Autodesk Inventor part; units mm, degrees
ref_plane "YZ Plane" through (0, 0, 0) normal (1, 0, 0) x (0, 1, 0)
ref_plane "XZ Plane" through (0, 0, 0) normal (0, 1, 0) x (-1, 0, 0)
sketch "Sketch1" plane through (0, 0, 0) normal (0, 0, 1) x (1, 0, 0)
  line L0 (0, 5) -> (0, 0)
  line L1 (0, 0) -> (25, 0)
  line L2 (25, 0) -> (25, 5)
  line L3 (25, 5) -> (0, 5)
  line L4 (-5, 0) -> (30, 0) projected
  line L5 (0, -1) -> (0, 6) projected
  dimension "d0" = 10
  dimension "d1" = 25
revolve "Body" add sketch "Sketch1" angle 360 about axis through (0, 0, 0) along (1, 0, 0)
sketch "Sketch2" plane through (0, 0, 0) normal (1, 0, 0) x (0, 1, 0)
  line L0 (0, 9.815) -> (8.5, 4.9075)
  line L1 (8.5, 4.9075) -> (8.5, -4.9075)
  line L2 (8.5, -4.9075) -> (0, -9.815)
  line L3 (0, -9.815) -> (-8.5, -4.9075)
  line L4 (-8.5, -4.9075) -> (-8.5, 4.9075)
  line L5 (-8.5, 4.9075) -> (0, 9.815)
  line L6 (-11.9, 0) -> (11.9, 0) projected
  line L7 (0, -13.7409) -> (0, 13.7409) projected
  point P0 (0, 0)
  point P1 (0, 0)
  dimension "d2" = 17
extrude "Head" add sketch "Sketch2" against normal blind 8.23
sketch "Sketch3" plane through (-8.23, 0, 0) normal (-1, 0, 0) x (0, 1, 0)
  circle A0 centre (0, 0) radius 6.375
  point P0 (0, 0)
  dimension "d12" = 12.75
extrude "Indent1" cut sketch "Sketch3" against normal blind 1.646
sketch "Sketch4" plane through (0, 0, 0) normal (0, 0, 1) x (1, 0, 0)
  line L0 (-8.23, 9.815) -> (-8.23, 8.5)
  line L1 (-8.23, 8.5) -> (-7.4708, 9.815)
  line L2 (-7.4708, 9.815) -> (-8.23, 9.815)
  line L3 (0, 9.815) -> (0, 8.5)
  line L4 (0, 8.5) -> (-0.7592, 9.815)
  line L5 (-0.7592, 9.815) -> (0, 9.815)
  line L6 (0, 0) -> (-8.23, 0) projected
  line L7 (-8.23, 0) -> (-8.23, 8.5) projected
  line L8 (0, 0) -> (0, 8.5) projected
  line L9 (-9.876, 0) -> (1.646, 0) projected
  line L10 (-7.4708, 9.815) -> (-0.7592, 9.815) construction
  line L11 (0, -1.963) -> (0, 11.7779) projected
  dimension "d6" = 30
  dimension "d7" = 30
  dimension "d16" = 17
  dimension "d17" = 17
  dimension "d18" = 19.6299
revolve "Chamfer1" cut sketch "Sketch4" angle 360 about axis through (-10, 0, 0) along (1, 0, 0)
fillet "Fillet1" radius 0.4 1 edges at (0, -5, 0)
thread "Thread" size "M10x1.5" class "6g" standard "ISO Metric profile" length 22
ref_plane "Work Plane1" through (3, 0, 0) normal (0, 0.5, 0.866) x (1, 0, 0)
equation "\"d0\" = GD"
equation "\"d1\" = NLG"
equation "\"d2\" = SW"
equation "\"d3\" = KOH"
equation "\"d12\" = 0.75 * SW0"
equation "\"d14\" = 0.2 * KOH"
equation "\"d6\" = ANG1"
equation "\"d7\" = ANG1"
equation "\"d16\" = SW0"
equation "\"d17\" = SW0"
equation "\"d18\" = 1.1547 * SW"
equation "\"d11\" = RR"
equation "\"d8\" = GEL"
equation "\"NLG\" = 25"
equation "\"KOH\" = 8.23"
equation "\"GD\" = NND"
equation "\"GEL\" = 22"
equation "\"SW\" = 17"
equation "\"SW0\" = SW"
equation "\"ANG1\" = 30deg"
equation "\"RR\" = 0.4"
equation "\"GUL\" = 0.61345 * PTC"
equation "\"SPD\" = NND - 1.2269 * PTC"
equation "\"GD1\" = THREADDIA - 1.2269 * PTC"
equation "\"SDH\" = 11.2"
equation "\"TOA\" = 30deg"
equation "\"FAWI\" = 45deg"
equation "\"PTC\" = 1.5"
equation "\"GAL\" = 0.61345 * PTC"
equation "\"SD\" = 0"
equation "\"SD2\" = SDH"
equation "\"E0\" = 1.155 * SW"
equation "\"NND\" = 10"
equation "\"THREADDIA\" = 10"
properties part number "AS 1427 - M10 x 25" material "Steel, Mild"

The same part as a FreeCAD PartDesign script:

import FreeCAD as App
import Part
import Sketcher

V = App.Vector
Q = App.Units.Quantity


def edges_at(feature, points):
    """Names of the edges that pass closest to the given points."""
    edges = feature.Shape.Edges
    near = lambda p: min(range(len(edges)), key=lambda i: edges[i].distToShape(Part.Vertex(*p))[0])
    return sorted({f"Edge{near(p) + 1}" for p in points})

doc = App.newDocument("Part")
params = doc.addObject("Spreadsheet::Sheet", "Params")
for row, (alias, value) in enumerate([
    ("sketch1_width", "25 mm"),
    ("sketch1_height", "5 mm"),
    ("revolution_angle", "360 deg"),
    ("pad1_length", "8.23 mm"),
    ("sketch3_diameter", "12.75 mm"),
    ("pocket1_length", "1.646 mm"),
    ("groove_angle", "360 deg"),
    ("fillet_radius", "0.4 mm"),
], start=1):
    params.set(f"A{row}", alias)
    params.set(f"B{row}", "=" + value)
    params.setAlias(f"B{row}", alias)

body = doc.addObject("PartDesign::Body", "Body")

# Sketch on XY plane
sketch1 = body.newObject("Sketcher::SketchObject", "Sketch")
sketch1.AttachmentSupport = (doc.getObject("XY_Plane"), [""])
sketch1.MapMode = "FlatFace"
sketch1.addGeometry([
    Part.LineSegment(V(25, 5, 0), V(0, 5, 0)),
    Part.LineSegment(V(0, 5, 0), V(0, 0, 0)),
    Part.LineSegment(V(0, 0, 0), V(25, 0, 0)),
    Part.LineSegment(V(25, 0, 0), V(25, 5, 0)),
], False)
sketch1.addConstraint([
    Sketcher.Constraint("Coincident", 0, 2, 1, 1),
    Sketcher.Constraint("Coincident", 1, 2, 2, 1),
    Sketcher.Constraint("Coincident", 2, 2, 3, 1),
    Sketcher.Constraint("Coincident", 3, 2, 0, 1),
    Sketcher.Constraint("Horizontal", 0),
    Sketcher.Constraint("Vertical", 1),
    Sketcher.Constraint("Horizontal", 2),
    Sketcher.Constraint("Vertical", 3),
    Sketcher.Constraint("Coincident", 1, 2, -1, 1),
    Sketcher.Constraint("DistanceX", 0, 2, 0, 1, Q("25 mm")),
    Sketcher.Constraint("DistanceY", 1, 2, 1, 1, Q("5 mm")),
])
sketch1.setExpression("Constraints[9]", "Params.sketch1_width")
sketch1.setExpression("Constraints[10]", "Params.sketch1_height")
revolution = body.newObject("PartDesign::Revolution", "Revolution")
revolution.Profile = sketch1
revolution.ReferenceAxis = (sketch1, ["H_Axis"])
revolution.setExpression("Angle", "Params.revolution_angle")

# Sketch on YZ plane
sketch2 = body.newObject("Sketcher::SketchObject", "Sketch001")
sketch2.AttachmentSupport = (doc.getObject("YZ_Plane"), [""])
sketch2.MapMode = "FlatFace"
sketch2.addGeometry([
    Part.LineSegment(V(-8, 5, 0), V(-8, -5, 0)),  # 0
    Part.LineSegment(V(-8, -5, 0), V(0, -10, 0)),  # 1
    Part.LineSegment(V(0, -10, 0), V(8, -5, 0)),  # 2
    Part.LineSegment(V(8, -5, 0), V(8, 5, 0)),  # 3
    Part.LineSegment(V(8, 5, 0), V(0, 10, 0)),  # 4
    Part.LineSegment(V(0, 10, 0), V(-8, 5, 0)),  # 5
], False)
sketch2.addConstraint([
    Sketcher.Constraint("Coincident", 0, 2, 1, 1),
    Sketcher.Constraint("Coincident", 1, 2, 2, 1),
    Sketcher.Constraint("Coincident", 2, 2, 3, 1),
    Sketcher.Constraint("Coincident", 3, 2, 4, 1),
    Sketcher.Constraint("Coincident", 4, 2, 5, 1),
    Sketcher.Constraint("Coincident", 5, 2, 0, 1),
    Sketcher.Constraint("Vertical", 0),
    Sketcher.Constraint("Vertical", 3),
    Sketcher.Constraint("Symmetric", 0, 2, 3, 2, -1, 1),
    Sketcher.Constraint("Symmetric", 1, 2, 4, 2, -1, 1),
    Sketcher.Constraint("PointOnObject", 1, 2, -2),
    Sketcher.Constraint("Parallel", 2, 5),
    Sketcher.Constraint("Horizontal", 0, 2, 2, 2),
    Sketcher.Constraint("DistanceX", 0, 2, 2, 2, Q("17 mm")),
    Sketcher.Constraint("Angle", 1, Q("-30 deg")),
    Sketcher.Constraint("DistanceY", 0, 2, 0, 1, Q("9.815 mm")),
])
pad1 = body.newObject("PartDesign::Pad", "Pad")
pad1.Profile = sketch2
pad1.setExpression("Length", "Params.pad1_length")
pad1.Reversed = True

# Sketch on YZ plane
sketch3 = body.newObject("Sketcher::SketchObject", "Sketch002")
sketch3.AttachmentSupport = (doc.getObject("YZ_Plane"), [""])
sketch3.MapMode = "FlatFace"
sketch3.AttachmentOffset = App.Placement(V(0, 0, -8.23), App.Rotation())
sketch3.addGeometry(Part.Circle(V(0, 0, 0), V(0, 0, 1), 6), False)
sketch3.addConstraint([
    Sketcher.Constraint("Coincident", 0, 3, -1, 1),
    Sketcher.Constraint("Diameter", 0, Q("12.75 mm")),
])
sketch3.setExpression("Constraints[1]", "Params.sketch3_diameter")
pocket1 = body.newObject("PartDesign::Pocket", "Pocket")
pocket1.Profile = sketch3
pocket1.setExpression("Length", "Params.pocket1_length")
pocket1.Reversed = True

# Sketch on XY plane
sketch4 = body.newObject("Sketcher::SketchObject", "Sketch003")
sketch4.AttachmentSupport = (doc.getObject("XY_Plane"), [""])
sketch4.MapMode = "FlatFace"
sketch4.addGeometry([
    Part.LineSegment(V(-7.5, 9.8, 0), V(-8.2, 9.8, 0)),  # 0
    Part.LineSegment(V(-8.2, 9.8, 0), V(-8.2, 8.5, 0)),  # 1
    Part.LineSegment(V(-8.2, 8.5, 0), V(-7.5, 9.8, 0)),  # 2
    Part.LineSegment(V(-0.8, 9.8, 0), V(0, 8.5, 0)),  # 3
    Part.LineSegment(V(0, 8.5, 0), V(0, 9.8, 0)),  # 4
    Part.LineSegment(V(0, 9.8, 0), V(-0.8, 9.8, 0)),  # 5
], False)
sketch4.addConstraint([
    Sketcher.Constraint("Coincident", 0, 2, 1, 1),
    Sketcher.Constraint("Coincident", 1, 2, 2, 1),
    Sketcher.Constraint("Coincident", 2, 2, 0, 1),
    Sketcher.Constraint("Coincident", 3, 2, 4, 1),
    Sketcher.Constraint("Coincident", 4, 2, 5, 1),
    Sketcher.Constraint("Coincident", 5, 2, 3, 1),
    Sketcher.Constraint("Horizontal", 0),
    Sketcher.Constraint("Vertical", 1),
    Sketcher.Constraint("Vertical", 4),
    Sketcher.Constraint("Horizontal", 5),
    Sketcher.Constraint("PointOnObject", 3, 2, -2),
    Sketcher.Constraint("Horizontal", 1, 2, 3, 2),
    Sketcher.Constraint("Horizontal", 2, 2, 4, 2),
    Sketcher.Constraint("Equal", 0, 5),
    Sketcher.Constraint("Angle", 2, Q("60.0005 deg")),
    Sketcher.Constraint("DistanceY", -1, 1, 1, 2, Q("8.5 mm")),
    Sketcher.Constraint("DistanceY", 1, 2, 1, 1, Q("1.315 mm")),
    Sketcher.Constraint("DistanceX", 0, 2, -1, 1, Q("8.23 mm")),
])
groove = body.newObject("PartDesign::Groove", "Groove")
groove.Profile = sketch4
groove.ReferenceAxis = (sketch4, ["H_Axis"])
groove.setExpression("Angle", "Params.groove_angle")
doc.recompute()

fillet = body.newObject("PartDesign::Fillet", "Fillet")
fillet.Base = (groove, edges_at(groove, [(0, -5, 0)]))
fillet.setExpression("Radius", "Params.fillet_radius")

doc.recompute()
